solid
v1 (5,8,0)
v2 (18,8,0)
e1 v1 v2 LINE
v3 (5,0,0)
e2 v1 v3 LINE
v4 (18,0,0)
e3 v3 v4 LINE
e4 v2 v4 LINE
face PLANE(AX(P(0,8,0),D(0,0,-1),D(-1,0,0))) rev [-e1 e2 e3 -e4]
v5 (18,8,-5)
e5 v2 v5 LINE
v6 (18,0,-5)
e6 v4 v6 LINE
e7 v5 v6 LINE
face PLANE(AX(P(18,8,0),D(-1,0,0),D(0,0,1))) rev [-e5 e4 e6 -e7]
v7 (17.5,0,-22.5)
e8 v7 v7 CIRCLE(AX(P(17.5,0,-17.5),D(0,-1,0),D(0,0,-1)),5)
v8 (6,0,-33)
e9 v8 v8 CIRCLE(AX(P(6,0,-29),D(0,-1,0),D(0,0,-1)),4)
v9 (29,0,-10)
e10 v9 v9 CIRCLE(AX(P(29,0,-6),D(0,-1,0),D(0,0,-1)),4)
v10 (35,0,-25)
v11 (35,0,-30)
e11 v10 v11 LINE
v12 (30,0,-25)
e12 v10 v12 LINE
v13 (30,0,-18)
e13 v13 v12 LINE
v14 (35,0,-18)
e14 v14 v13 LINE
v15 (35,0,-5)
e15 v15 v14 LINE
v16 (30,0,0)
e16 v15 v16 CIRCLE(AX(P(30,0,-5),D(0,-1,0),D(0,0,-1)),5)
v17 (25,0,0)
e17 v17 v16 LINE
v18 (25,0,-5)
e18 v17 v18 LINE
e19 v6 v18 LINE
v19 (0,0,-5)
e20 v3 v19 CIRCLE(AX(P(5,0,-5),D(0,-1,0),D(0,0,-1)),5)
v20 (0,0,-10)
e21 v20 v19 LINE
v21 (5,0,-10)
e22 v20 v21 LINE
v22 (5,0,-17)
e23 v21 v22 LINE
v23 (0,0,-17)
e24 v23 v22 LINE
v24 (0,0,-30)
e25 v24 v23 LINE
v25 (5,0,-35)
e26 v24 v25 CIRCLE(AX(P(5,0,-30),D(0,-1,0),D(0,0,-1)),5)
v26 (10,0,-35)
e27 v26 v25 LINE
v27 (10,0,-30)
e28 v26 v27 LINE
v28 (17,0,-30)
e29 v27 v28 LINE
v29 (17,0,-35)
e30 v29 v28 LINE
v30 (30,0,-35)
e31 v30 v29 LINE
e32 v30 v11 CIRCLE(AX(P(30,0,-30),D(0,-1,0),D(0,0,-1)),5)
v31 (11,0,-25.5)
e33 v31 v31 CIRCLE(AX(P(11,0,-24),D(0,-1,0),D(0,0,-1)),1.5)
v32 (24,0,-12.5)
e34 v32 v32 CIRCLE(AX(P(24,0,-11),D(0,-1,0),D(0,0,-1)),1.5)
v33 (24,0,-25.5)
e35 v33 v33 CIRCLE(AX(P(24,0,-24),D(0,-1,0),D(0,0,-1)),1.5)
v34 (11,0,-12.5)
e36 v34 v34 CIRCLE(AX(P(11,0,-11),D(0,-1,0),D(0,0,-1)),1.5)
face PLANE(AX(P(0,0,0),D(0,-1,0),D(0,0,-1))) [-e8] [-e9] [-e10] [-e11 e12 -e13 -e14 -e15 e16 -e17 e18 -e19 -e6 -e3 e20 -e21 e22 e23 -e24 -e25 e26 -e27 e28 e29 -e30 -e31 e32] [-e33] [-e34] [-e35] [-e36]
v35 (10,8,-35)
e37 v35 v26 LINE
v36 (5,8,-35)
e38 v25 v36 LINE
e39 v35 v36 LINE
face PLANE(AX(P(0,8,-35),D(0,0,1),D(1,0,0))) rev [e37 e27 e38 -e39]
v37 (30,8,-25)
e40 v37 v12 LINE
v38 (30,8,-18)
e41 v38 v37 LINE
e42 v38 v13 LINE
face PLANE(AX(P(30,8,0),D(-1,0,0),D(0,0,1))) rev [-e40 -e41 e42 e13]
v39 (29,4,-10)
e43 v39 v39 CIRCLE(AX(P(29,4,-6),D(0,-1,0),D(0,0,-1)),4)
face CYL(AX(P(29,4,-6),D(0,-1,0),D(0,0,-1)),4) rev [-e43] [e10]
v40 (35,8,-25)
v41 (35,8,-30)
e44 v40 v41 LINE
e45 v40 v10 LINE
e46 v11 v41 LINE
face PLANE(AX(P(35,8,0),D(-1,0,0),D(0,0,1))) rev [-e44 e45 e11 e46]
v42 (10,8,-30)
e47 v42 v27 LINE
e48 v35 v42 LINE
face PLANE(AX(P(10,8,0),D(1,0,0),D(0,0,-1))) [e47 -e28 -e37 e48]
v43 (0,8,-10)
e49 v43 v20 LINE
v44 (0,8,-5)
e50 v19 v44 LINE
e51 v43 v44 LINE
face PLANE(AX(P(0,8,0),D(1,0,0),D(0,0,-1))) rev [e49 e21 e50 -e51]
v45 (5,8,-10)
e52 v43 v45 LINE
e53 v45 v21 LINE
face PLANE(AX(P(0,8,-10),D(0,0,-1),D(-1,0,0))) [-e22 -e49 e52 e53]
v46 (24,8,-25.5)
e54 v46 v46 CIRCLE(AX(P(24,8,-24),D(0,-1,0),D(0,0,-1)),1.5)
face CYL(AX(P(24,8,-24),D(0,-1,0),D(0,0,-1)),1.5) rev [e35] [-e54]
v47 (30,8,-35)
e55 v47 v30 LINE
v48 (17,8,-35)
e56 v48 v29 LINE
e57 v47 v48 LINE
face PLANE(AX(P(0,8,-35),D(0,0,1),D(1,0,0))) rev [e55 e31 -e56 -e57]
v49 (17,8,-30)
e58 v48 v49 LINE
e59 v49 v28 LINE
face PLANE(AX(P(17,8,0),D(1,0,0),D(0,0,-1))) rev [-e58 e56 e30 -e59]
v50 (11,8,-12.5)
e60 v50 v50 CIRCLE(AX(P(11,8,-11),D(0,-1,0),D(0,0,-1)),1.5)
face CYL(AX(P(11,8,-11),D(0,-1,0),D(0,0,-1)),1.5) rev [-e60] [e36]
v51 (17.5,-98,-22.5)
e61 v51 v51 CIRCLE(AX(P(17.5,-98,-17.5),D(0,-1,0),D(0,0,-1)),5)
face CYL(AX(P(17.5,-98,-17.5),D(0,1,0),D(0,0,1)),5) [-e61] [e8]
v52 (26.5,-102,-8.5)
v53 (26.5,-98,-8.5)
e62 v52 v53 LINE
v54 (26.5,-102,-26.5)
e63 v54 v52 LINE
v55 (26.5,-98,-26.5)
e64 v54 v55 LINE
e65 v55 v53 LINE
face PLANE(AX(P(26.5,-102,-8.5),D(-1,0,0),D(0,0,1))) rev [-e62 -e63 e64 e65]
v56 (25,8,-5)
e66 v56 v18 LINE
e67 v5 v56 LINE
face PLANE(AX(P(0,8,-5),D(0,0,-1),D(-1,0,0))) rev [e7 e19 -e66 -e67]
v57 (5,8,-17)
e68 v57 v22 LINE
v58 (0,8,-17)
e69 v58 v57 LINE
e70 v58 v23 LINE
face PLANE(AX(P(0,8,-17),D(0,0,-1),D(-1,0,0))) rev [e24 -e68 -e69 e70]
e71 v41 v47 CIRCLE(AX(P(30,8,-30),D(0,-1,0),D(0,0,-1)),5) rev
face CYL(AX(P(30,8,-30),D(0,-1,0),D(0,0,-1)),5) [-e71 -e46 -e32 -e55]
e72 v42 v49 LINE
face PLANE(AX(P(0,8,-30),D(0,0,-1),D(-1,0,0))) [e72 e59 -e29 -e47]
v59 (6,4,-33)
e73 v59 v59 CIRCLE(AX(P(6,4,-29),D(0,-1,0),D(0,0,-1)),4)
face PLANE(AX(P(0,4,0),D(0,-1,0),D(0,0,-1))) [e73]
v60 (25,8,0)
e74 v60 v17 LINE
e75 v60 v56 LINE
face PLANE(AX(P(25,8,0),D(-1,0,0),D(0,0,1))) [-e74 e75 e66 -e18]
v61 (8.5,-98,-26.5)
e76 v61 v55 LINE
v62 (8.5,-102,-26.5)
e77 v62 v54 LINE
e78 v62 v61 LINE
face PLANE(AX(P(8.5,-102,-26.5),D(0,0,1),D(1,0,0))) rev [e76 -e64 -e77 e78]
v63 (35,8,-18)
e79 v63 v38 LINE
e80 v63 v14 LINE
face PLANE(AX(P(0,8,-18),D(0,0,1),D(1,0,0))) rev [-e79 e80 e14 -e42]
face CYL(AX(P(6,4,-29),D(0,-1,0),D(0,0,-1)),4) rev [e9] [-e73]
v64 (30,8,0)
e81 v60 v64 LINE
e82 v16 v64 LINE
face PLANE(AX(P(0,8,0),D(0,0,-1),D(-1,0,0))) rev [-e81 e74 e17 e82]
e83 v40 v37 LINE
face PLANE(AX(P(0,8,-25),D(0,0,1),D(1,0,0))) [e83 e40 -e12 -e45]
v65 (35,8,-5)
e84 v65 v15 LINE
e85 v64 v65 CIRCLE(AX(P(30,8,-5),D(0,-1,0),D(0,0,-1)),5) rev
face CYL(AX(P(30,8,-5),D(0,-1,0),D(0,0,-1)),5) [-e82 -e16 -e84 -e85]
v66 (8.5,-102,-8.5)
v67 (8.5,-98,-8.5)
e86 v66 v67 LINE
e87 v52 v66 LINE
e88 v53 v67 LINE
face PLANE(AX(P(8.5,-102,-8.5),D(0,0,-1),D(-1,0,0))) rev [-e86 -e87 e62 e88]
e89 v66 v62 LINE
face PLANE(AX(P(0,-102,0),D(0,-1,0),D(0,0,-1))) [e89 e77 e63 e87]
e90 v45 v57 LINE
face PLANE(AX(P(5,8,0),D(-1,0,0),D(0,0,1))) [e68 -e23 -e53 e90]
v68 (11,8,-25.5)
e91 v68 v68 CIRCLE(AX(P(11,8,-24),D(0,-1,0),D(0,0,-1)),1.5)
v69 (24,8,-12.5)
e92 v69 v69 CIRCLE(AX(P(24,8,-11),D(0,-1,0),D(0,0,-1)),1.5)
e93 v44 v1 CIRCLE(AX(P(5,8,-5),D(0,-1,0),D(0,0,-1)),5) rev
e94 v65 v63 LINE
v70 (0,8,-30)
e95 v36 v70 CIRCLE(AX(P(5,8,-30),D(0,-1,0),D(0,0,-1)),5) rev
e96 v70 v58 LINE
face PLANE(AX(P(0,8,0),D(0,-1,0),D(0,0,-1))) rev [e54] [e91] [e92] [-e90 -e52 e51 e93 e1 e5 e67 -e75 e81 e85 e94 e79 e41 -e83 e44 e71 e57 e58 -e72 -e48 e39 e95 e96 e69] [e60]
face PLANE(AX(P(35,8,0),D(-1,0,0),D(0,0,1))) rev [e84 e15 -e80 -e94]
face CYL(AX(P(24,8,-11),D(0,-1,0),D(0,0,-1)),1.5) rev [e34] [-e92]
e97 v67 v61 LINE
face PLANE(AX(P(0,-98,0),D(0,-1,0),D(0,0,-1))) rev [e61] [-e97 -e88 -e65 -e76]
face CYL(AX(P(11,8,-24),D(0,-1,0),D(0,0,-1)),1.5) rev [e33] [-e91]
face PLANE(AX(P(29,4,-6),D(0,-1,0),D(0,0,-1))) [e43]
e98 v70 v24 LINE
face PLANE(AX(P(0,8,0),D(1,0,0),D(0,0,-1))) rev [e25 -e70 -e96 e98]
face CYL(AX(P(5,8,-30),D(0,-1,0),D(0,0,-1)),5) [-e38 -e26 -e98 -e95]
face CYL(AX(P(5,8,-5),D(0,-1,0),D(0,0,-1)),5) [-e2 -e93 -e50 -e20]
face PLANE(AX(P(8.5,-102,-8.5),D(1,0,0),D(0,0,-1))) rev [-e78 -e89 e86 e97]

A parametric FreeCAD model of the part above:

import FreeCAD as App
import Part
import Sketcher

V = App.Vector
Q = App.Units.Quantity


def edges_at(feature, points):
    """Names of the edges that pass closest to the given points."""
    edges = feature.Shape.Edges
    near = lambda p: min(range(len(edges)), key=lambda i: edges[i].distToShape(Part.Vertex(*p))[0])
    return sorted({f"Edge{near(p) + 1}" for p in points})


def add_polygon(sketch, points):
    """Adds a closed chain of lines whose ends are joined by coincident constraints."""
    first, n = sketch.GeometryCount, len(points)
    for a, b in zip(points, points[1:] + points[:1]):
        sketch.addGeometry(Part.LineSegment(App.Vector(*a, 0), App.Vector(*b, 0)), False)
    for i in range(n):
        sketch.addConstraint(Sketcher.Constraint("Coincident", first + i, 2, first + (i + 1) % n, 1))

doc = App.newDocument("Part")
params = doc.addObject("Spreadsheet::Sheet", "Params")
for row, (alias, value) in enumerate([
    ("sketch1_width", "35 mm"),
    ("pad1_length", "8 mm"),
    ("sketch2_diameter", "3 mm"),
    ("sketch2_width", "5 mm"),
    ("sketch2_width2", "7 mm"),
    ("sketch3_diameter", "8 mm"),
    ("sketch3_diameter2", "3 mm"),
    ("pocket2_length", "4 mm"),
    ("sketch4_diameter", "10 mm"),
    ("pad2_length", "98 mm"),
    ("sketch5_width", "18 mm"),
    ("pad3_length", "4 mm"),
    ("fillet_radius", "5 mm"),
], start=1):
    params.set(f"A{row}", alias)
    params.set(f"B{row}", "=" + value)
    params.setAlias(f"B{row}", alias)

body = doc.addObject("PartDesign::Body", "Body")

sketch1 = doc.addObject("Sketcher::SketchObject", "Sketch")
body.addObject(sketch1)
sketch1.AttachmentSupport = (doc.XZ_Plane, [""])
sketch1.MapMode = "FlatFace"
add_polygon(sketch1, [(0, -35), (0, 0), (35, 0), (35, -35)])
sketch1.addConstraint([
    Sketcher.Constraint("Vertical", 0),
    Sketcher.Constraint("Horizontal", 1),
    Sketcher.Constraint("Vertical", 2),
    Sketcher.Constraint("Horizontal", 3),
    Sketcher.Constraint("Coincident", 0, 2, -1, 1),
    Sketcher.Constraint("Equal", 3, 0),
    Sketcher.Constraint("DistanceX", 1, 1, 1, 2, Q("35 mm")),
])
sketch1.setExpression("Constraints[10]", "Params.sketch1_width")
pad1 = doc.addObject("PartDesign::Pad", "Pad")
body.addObject(pad1)
pad1.Profile = sketch1
pad1.setExpression("Length", "Params.pad1_length")
pad1.Reversed = True

sketch2 = doc.addObject("Sketcher::SketchObject", "Sketch001")
body.addObject(sketch2)
sketch2.AttachmentSupport = (doc.XZ_Plane, [""])
sketch2.MapMode = "FlatFace"
add_polygon(sketch2, [(30, -18), (30, -25), (35, -25), (35, -18)])
add_polygon(sketch2, [(10, -30), (10, -35), (17, -35), (17, -30)])
add_polygon(sketch2, [(0, -10), (0, -17), (5, -17), (5, -10)])
add_polygon(sketch2, [(18, 0), (18, -5), (25, -5), (25, 0)])
sketch2.addGeometry(Part.Circle(V(11, -11, 0), V(0, 0, 1), 1.5), False)
sketch2.addGeometry(Part.Circle(V(24, -11, 0), V(0, 0, 1), 1.5), False)
sketch2.addGeometry(Part.Circle(V(11, -24, 0), V(0, 0, 1), 1.5), False)
sketch2.addGeometry(Part.Circle(V(24, -24, 0), V(0, 0, 1), 1.5), False)
sketch2.addConstraint([
    Sketcher.Constraint("Vertical", 0),
    Sketcher.Constraint("Horizontal", 1),
    Sketcher.Constraint("Vertical", 2),
    Sketcher.Constraint("Horizontal", 3),
    Sketcher.Constraint("Vertical", 4),
    Sketcher.Constraint("Horizontal", 5),
    Sketcher.Constraint("Vertical", 6),
    Sketcher.Constraint("Horizontal", 7),
    Sketcher.Constraint("Vertical", 8),
    Sketcher.Constraint("Horizontal", 9),
    Sketcher.Constraint("Vertical", 10),
    Sketcher.Constraint("Horizontal", 11),
    Sketcher.Constraint("Vertical", 12),
    Sketcher.Constraint("Horizontal", 13),
    Sketcher.Constraint("Vertical", 14),
    Sketcher.Constraint("Horizontal", 15),
    Sketcher.Constraint("Equal", 16, 17),
    Sketcher.Constraint("Equal", 17, 18),
    Sketcher.Constraint("Equal", 18, 19),
    Sketcher.Constraint("PointOnObject", 8, 2, -2),
    Sketcher.Constraint("PointOnObject", 14, 2, -1),
    Sketcher.Constraint("Horizontal", 16, 3, 17, 3),
    Sketcher.Constraint("Horizontal", 18, 3, 19, 3),
    Sketcher.Constraint("Vertical", 16, 3, 18, 3),
    Sketcher.Constraint("Vertical", 17, 3, 19, 3),
    Sketcher.Constraint("Equal", 3, 9),
    Sketcher.Constraint("Equal", 7, 13),
    Sketcher.Constraint("Equal", 15, 0),
    Sketcher.Constraint("Equal", 11, 4),
    Sketcher.Constraint("Equal", 2, 8),
    Sketcher.Constraint("Equal", 6, 12),
    Sketcher.Constraint("Diameter", 16, Q("3 mm")),
    Sketcher.Constraint("DistanceX", 1, 1, 1, 2, Q("5 mm")),
    Sketcher.Constraint("DistanceX", 5, 1, 5, 2, Q("7 mm")),
    Sketcher.Constraint("DistanceX", -1, 1, 16, 3, Q("11 mm")),
    Sketcher.Constraint("DistanceY", 16, 3, -1, 1, Q("11 mm")),
    Sketcher.Constraint("DistanceX", -1, 1, 17, 3, Q("24 mm")),
    Sketcher.Constraint("DistanceY", 18, 3, -1, 1, Q("24 mm")),
    Sketcher.Constraint("DistanceX", -1, 1, 0, 2, Q("30 mm")),
    Sketcher.Constraint("DistanceY", 0, 2, -1, 1, Q("25 mm")),
    Sketcher.Constraint("DistanceX", -1, 1, 4, 2, Q("10 mm")),
    Sketcher.Constraint("DistanceY", 4, 2, -1, 1, Q("35 mm")),
    Sketcher.Constraint("DistanceY", 8, 2, -1, 1, Q("17 mm")),
    Sketcher.Constraint("DistanceX", -1, 1, 12, 2, Q("18 mm")),
])
sketch2.setExpression("Constraints[47]", "Params.sketch2_diameter")
sketch2.setExpression("Constraints[48]", "Params.sketch2_width")
sketch2.setExpression("Constraints[49]", "Params.sketch2_width2")
pocket1 = doc.addObject("PartDesign::Pocket", "Pocket")
body.addObject(pocket1)
pocket1.Profile = sketch2
pocket1.Type = "ThroughAll"

sketch3 = doc.addObject("Sketcher::SketchObject", "Sketch002")
body.addObject(sketch3)
sketch3.AttachmentSupport = (doc.XZ_Plane, [""])
sketch3.MapMode = "FlatFace"
sketch3.addGeometry([
    Part.Circle(V(6, -29, 0), V(0, 0, 1), 4),
    Part.Circle(V(29, -6, 0), V(0, 0, 1), 4),
    Part.Circle(V(11, -11, 0), V(0, 0, 1), 1.5),
], False)
sketch3.addConstraint([
    Sketcher.Constraint("Equal", 0, 1),
    Sketcher.Constraint("Diameter", 0, Q("8 mm")),
    Sketcher.Constraint("Diameter", 2, Q("3 mm")),
    Sketcher.Constraint("DistanceX", -1, 1, 0, 3, Q("6 mm")),
    Sketcher.Constraint("DistanceY", 0, 3, -1, 1, Q("29 mm")),
    Sketcher.Constraint("DistanceX", -1, 1, 1, 3, Q("29 mm")),
    Sketcher.Constraint("DistanceY", 1, 3, -1, 1, Q("6 mm")),
    Sketcher.Constraint("DistanceX", -1, 1, 2, 3, Q("11 mm")),
    Sketcher.Constraint("DistanceY", 2, 3, -1, 1, Q("11 mm")),
])
sketch3.setExpression("Constraints[1]", "Params.sketch3_diameter")
sketch3.setExpression("Constraints[2]", "Params.sketch3_diameter2")
pocket2 = doc.addObject("PartDesign::Pocket", "Pocket001")
body.addObject(pocket2)
pocket2.Profile = sketch3
pocket2.setExpression("Length", "Params.pocket2_length")

sketch4 = doc.addObject("Sketcher::SketchObject", "Sketch003")
body.addObject(sketch4)
sketch4.AttachmentSupport = (doc.XZ_Plane, [""])
sketch4.MapMode = "FlatFace"
sketch4.addGeometry(Part.Circle(V(18, -18, 0), V(0, 0, 1), 5), False)
sketch4.addConstraint([
    Sketcher.Constraint("Diameter", 0, Q("10 mm")),
    Sketcher.Constraint("DistanceX", -1, 1, 0, 3, Q("17.5 mm")),
    Sketcher.Constraint("DistanceY", 0, 3, -1, 1, Q("17.5 mm")),
])
sketch4.setExpression("Constraints[0]", "Params.sketch4_diameter")
pad2 = doc.addObject("PartDesign::Pad", "Pad001")
body.addObject(pad2)
pad2.Profile = sketch4
pad2.setExpression("Length", "Params.pad2_length")

sketch5 = doc.addObject("Sketcher::SketchObject", "Sketch004")
body.addObject(sketch5)
sketch5.AttachmentSupport = (doc.XZ_Plane, [""])
sketch5.MapMode = "FlatFace"
sketch5.AttachmentOffset = App.Placement(V(0, 0, 98), App.Rotation())
add_polygon(sketch5, [(8, -8), (8, -26), (26, -26), (26, -8)])
sketch5.addConstraint([
    Sketcher.Constraint("Vertical", 0),
    Sketcher.Constraint("Horizontal", 1),
    Sketcher.Constraint("Vertical", 2),
    Sketcher.Constraint("Horizontal", 3),
    Sketcher.Constraint("Equal", 3, 0),
    Sketcher.Constraint("DistanceX", 1, 1, 1, 2, Q("18 mm")),
    Sketcher.Constraint("DistanceX", -1, 1, 0, 2, Q("8.5 mm")),
    Sketcher.Constraint("DistanceY", 0, 2, -1, 1, Q("26.5 mm")),
])
sketch5.setExpression("Constraints[9]", "Params.sketch5_width")
pad3 = doc.addObject("PartDesign::Pad", "Pad002")
body.addObject(pad3)
pad3.Profile = sketch5
pad3.setExpression("Length", "Params.pad3_length")
doc.recompute()

fillet = doc.addObject("PartDesign::Fillet", "Fillet")
body.addObject(fillet)
fillet.Base = (pad3, edges_at(pad3, [
    (0, 4, -35),
    (35, 4, -35),
    (35, 4, 0),
    (0, 4, 0),
]))
fillet.setExpression("Radius", "Params.fillet_radius")

doc.recompute()
